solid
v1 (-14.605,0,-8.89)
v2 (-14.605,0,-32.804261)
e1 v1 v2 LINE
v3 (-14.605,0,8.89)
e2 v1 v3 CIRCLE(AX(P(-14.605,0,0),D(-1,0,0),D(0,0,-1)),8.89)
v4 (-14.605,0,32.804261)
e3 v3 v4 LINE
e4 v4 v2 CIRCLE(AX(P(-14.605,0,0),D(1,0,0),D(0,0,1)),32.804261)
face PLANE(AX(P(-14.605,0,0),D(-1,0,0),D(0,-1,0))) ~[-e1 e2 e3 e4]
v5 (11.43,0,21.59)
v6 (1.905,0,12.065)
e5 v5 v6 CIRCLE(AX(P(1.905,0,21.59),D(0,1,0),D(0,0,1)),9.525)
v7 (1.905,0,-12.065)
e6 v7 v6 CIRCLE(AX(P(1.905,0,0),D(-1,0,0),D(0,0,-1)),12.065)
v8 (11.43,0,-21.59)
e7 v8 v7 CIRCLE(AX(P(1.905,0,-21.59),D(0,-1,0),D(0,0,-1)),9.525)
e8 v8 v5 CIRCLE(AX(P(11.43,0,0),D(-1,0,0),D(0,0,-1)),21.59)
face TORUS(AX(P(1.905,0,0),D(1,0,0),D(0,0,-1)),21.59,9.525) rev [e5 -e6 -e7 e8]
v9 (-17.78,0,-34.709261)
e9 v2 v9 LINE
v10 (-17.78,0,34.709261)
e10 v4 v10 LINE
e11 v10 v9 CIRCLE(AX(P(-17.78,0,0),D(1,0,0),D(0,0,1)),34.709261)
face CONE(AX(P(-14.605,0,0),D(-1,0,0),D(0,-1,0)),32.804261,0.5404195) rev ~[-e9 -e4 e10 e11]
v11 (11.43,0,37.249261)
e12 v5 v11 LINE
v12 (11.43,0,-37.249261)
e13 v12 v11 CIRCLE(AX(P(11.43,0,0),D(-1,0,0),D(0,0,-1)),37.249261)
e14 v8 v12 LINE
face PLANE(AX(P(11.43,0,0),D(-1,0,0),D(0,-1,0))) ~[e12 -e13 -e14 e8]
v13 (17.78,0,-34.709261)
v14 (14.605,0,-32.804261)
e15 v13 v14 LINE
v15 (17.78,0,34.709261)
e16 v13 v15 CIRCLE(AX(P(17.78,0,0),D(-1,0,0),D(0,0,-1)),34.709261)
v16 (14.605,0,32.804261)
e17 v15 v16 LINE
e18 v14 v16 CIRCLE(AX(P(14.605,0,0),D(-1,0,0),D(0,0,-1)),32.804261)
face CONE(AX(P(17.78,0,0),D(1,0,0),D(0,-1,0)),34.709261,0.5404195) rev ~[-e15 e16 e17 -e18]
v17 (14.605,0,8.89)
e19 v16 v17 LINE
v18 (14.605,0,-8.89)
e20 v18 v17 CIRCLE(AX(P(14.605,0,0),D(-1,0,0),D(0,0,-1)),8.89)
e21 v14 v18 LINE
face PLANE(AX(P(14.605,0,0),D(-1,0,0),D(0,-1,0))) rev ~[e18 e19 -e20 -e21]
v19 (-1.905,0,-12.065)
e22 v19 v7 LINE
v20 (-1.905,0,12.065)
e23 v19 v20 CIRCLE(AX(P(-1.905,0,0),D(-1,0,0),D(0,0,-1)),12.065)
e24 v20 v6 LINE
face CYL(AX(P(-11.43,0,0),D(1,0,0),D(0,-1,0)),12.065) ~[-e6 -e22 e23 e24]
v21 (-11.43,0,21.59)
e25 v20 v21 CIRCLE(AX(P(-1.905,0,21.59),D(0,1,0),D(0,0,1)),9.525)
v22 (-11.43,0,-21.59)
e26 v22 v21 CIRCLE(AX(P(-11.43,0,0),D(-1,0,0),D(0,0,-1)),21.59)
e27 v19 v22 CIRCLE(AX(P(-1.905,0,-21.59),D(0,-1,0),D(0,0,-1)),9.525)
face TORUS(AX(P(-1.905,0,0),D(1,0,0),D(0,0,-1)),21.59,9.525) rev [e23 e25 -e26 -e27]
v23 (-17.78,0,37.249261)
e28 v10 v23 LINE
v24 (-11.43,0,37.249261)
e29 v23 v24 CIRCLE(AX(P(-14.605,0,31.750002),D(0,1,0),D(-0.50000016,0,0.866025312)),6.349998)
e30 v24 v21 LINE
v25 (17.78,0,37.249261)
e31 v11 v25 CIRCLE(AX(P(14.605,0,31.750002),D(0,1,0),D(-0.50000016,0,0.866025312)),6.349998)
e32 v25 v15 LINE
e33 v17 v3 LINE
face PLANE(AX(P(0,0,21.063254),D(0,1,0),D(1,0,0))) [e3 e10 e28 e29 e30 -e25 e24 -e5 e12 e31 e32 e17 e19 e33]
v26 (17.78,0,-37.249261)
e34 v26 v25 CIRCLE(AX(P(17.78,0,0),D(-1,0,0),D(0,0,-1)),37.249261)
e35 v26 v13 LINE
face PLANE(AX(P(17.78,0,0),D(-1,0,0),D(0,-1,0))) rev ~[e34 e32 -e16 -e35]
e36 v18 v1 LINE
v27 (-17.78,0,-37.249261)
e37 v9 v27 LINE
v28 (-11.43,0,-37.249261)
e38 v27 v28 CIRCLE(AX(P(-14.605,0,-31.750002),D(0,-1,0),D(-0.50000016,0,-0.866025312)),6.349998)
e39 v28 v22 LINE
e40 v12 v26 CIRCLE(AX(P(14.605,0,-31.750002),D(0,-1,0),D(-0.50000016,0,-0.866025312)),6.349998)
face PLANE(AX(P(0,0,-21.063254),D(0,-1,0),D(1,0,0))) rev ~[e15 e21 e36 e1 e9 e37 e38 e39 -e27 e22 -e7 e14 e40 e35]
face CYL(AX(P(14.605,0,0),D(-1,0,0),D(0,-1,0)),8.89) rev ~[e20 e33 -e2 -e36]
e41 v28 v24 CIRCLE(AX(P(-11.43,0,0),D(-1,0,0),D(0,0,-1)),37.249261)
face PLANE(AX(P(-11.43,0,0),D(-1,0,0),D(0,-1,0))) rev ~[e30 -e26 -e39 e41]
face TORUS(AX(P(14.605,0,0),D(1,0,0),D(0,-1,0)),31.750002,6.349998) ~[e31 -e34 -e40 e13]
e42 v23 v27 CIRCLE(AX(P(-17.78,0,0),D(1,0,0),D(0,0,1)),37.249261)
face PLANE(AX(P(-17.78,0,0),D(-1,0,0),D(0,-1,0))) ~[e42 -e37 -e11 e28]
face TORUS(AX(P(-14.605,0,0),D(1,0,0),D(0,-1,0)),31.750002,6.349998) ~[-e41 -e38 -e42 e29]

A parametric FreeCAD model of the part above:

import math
import FreeCAD as App
import Part
import Sketcher

V = App.Vector
Q = App.Units.Quantity


def edges_at(feature, points):
    """Names of the edges that pass closest to the given points."""
    edges = feature.Shape.Edges
    near = lambda p: min(range(len(edges)), key=lambda i: edges[i].distToShape(Part.Vertex(*p))[0])
    return sorted({f"Edge{near(p) + 1}" for p in points})

doc = App.newDocument("Part")
body = doc.addObject("PartDesign::Body", "Body")

# Sketch on XY plane
sketch1 = body.newObject("Sketcher::SketchObject", "Sketch")
sketch1.AttachmentSupport = (doc.getObject("XY_Plane"), [""])
sketch1.MapMode = "FlatFace"
sketch1.addGeometry([
    Part.ArcOfCircle(Part.Circle(V(-14.6, -31.8, 0), V(0, 0, 1), 6.3), math.radians(-120), math.radians(-60)),  # 0
    Part.LineSegment(V(-11.4, -37.2, 0), V(-11.4, -12.1, 0)),  # 1
    Part.LineSegment(V(-11.4, -12.1, 0), V(11.4, -12.1, 0)),  # 2
    Part.LineSegment(V(11.4, -12.1, 0), V(11.4, -37.2, 0)),  # 3
    Part.ArcOfCircle(Part.Circle(V(14.6, -31.8, 0), V(0, 0, 1), 6.3), math.radians(-120), math.radians(-60)),  # 4
    Part.LineSegment(V(17.8, -37.2, 0), V(17.8, -34.7, 0)),  # 5
    Part.LineSegment(V(17.8, -34.7, 0), V(14.6, -32.8, 0)),  # 6
    Part.LineSegment(V(14.6, -32.8, 0), V(14.6, -8.9, 0)),  # 7
    Part.LineSegment(V(14.6, -8.9, 0), V(-14.6, -8.9, 0)),  # 8
    Part.LineSegment(V(-14.6, -8.9, 0), V(-14.6, -32.8, 0)),  # 9
    Part.LineSegment(V(-14.6, -32.8, 0), V(-17.8, -34.7, 0)),  # 10
    Part.LineSegment(V(-17.8, -34.7, 0), V(-17.8, -37.2, 0)),  # 11
], False)
sketch1.addConstraint([
    Sketcher.Constraint("Coincident", 0, 2, 1, 1),
    Sketcher.Constraint("Coincident", 1, 2, 2, 1),
    Sketcher.Constraint("Coincident", 2, 2, 3, 1),
    Sketcher.Constraint("Coincident", 3, 2, 4, 1),
    Sketcher.Constraint("Coincident", 4, 2, 5, 1),
    Sketcher.Constraint("Coincident", 5, 2, 6, 1),
    Sketcher.Constraint("Coincident", 6, 2, 7, 1),
    Sketcher.Constraint("Coincident", 7, 2, 8, 1),
    Sketcher.Constraint("Coincident", 8, 2, 9, 1),
    Sketcher.Constraint("Coincident", 9, 2, 10, 1),
    Sketcher.Constraint("Coincident", 10, 2, 11, 1),
    Sketcher.Constraint("Coincident", 11, 2, 0, 1),
    Sketcher.Constraint("Vertical", 1),
    Sketcher.Constraint("Horizontal", 2),
    Sketcher.Constraint("Vertical", 3),
    Sketcher.Constraint("Vertical", 5),
    Sketcher.Constraint("Vertical", 7),
    Sketcher.Constraint("Horizontal", 8),
    Sketcher.Constraint("Vertical", 9),
    Sketcher.Constraint("Vertical", 11),
    Sketcher.Constraint("Equal", 0, 4),
    Sketcher.Constraint("Symmetric", 0, 3, 4, 3, -2),
    Sketcher.Constraint("Symmetric", 6, 2, 9, 2, -2),
    Sketcher.Constraint("Symmetric", 5, 2, 10, 2, -2),
    Sketcher.Constraint("Horizontal", 0, 2, 3, 2),
    Sketcher.Constraint("Horizontal", 3, 2, 4, 2),
    Sketcher.Constraint("Vertical", 4, 3, 6, 2),
    Sketcher.Constraint("Radius", 0, Q("0.2499999 in")),
    Sketcher.Constraint("DistanceX", 2, 1, 2, 2, Q("0.9 in")),
    Sketcher.Constraint("DistanceY", 5, 1, 5, 2, Q("0.1 in")),
    Sketcher.Constraint("DistanceX", 8, 2, 8, 1, Q("1.15 in")),
    Sketcher.Constraint("DistanceY", 4, 3, 7, 2, Q("0.9000001 in")),
    Sketcher.Constraint("DistanceY", 0, 3, -1, 1, Q("1.2500001 in")),
    Sketcher.Constraint("DistanceY", 1, 2, -1, 1, Q("0.475 in")),
    Sketcher.Constraint("DistanceY", 5, 2, 6, 2, Q("0.075 in")),
])
revolution = body.newObject("PartDesign::Revolution", "Revolution")
revolution.Profile = sketch1
revolution.ReferenceAxis = (sketch1, ["H_Axis"])
revolution.Angle = 90

# Sketch on XY plane
sketch2 = body.newObject("Sketcher::SketchObject", "Sketch001")
sketch2.AttachmentSupport = (doc.getObject("XY_Plane"), [""])
sketch2.MapMode = "FlatFace"
sketch2.addGeometry([
    Part.ArcOfCircle(Part.Circle(V(-14.6, -31.8, 0), V(0, 0, 1), 6.3), math.radians(-120), math.radians(-60)),  # 0
    Part.LineSegment(V(-11.4, -37.2, 0), V(-11.4, -12.1, 0)),  # 1
    Part.LineSegment(V(-11.4, -12.1, 0), V(11.4, -12.1, 0)),  # 2
    Part.LineSegment(V(11.4, -12.1, 0), V(11.4, -37.2, 0)),  # 3
    Part.ArcOfCircle(Part.Circle(V(14.6, -31.8, 0), V(0, 0, 1), 6.3), math.radians(-120), math.radians(-60)),  # 4
    Part.LineSegment(V(17.8, -37.2, 0), V(17.8, -34.7, 0)),  # 5
    Part.LineSegment(V(17.8, -34.7, 0), V(14.6, -32.8, 0)),  # 6
    Part.LineSegment(V(14.6, -32.8, 0), V(14.6, -8.9, 0)),  # 7
    Part.LineSegment(V(14.6, -8.9, 0), V(-14.6, -8.9, 0)),  # 8
    Part.LineSegment(V(-14.6, -8.9, 0), V(-14.6, -32.8, 0)),  # 9
    Part.LineSegment(V(-14.6, -32.8, 0), V(-17.8, -34.7, 0)),  # 10
    Part.LineSegment(V(-17.8, -34.7, 0), V(-17.8, -37.2, 0)),  # 11
], False)
sketch2.addConstraint([
    Sketcher.Constraint("Coincident", 0, 2, 1, 1),
    Sketcher.Constraint("Coincident", 1, 2, 2, 1),
    Sketcher.Constraint("Coincident", 2, 2, 3, 1),
    Sketcher.Constraint("Coincident", 3, 2, 4, 1),
    Sketcher.Constraint("Coincident", 4, 2, 5, 1),
    Sketcher.Constraint("Coincident", 5, 2, 6, 1),
    Sketcher.Constraint("Coincident", 6, 2, 7, 1),
    Sketcher.Constraint("Coincident", 7, 2, 8, 1),
    Sketcher.Constraint("Coincident", 8, 2, 9, 1),
    Sketcher.Constraint("Coincident", 9, 2, 10, 1),
    Sketcher.Constraint("Coincident", 10, 2, 11, 1),
    Sketcher.Constraint("Coincident", 11, 2, 0, 1),
    Sketcher.Constraint("Vertical", 1),
    Sketcher.Constraint("Horizontal", 2),
    Sketcher.Constraint("Vertical", 3),
    Sketcher.Constraint("Vertical", 5),
    Sketcher.Constraint("Vertical", 7),
    Sketcher.Constraint("Horizontal", 8),
    Sketcher.Constraint("Vertical", 9),
    Sketcher.Constraint("Vertical", 11),
    Sketcher.Constraint("Equal", 0, 4),
    Sketcher.Constraint("Symmetric", 0, 3, 4, 3, -2),
    Sketcher.Constraint("Symmetric", 6, 2, 9, 2, -2),
    Sketcher.Constraint("Symmetric", 5, 2, 10, 2, -2),
    Sketcher.Constraint("Horizontal", 0, 2, 3, 2),
    Sketcher.Constraint("Horizontal", 3, 2, 4, 2),
    Sketcher.Constraint("Vertical", 4, 3, 6, 2),
    Sketcher.Constraint("Radius", 0, Q("0.2499999 in")),
    Sketcher.Constraint("DistanceX", 2, 1, 2, 2, Q("0.9 in")),
    Sketcher.Constraint("DistanceY", 5, 1, 5, 2, Q("0.1 in")),
    Sketcher.Constraint("DistanceX", 8, 2, 8, 1, Q("1.15 in")),
    Sketcher.Constraint("DistanceY", 4, 3, 7, 2, Q("0.9000001 in")),
    Sketcher.Constraint("DistanceY", 0, 3, -1, 1, Q("1.2500001 in")),
    Sketcher.Constraint("DistanceY", 1, 2, -1, 1, Q("0.475 in")),
    Sketcher.Constraint("DistanceY", 5, 2, 6, 2, Q("0.075 in")),
])
revolution2 = body.newObject("PartDesign::Revolution", "Revolution001")
revolution2.Profile = sketch2
revolution2.ReferenceAxis = (sketch2, ["H_Axis"])
revolution2.Angle = 90
revolution2.Reversed = True
doc.recompute()

fillet = body.newObject("PartDesign::Fillet", "Fillet")
fillet.Base = (revolution2, edges_at(revolution2, [(11.43, -12.065, 0), (-11.43, -12.065, 0)]))
fillet.Radius = Q("0.375 in")

doc.recompute()
